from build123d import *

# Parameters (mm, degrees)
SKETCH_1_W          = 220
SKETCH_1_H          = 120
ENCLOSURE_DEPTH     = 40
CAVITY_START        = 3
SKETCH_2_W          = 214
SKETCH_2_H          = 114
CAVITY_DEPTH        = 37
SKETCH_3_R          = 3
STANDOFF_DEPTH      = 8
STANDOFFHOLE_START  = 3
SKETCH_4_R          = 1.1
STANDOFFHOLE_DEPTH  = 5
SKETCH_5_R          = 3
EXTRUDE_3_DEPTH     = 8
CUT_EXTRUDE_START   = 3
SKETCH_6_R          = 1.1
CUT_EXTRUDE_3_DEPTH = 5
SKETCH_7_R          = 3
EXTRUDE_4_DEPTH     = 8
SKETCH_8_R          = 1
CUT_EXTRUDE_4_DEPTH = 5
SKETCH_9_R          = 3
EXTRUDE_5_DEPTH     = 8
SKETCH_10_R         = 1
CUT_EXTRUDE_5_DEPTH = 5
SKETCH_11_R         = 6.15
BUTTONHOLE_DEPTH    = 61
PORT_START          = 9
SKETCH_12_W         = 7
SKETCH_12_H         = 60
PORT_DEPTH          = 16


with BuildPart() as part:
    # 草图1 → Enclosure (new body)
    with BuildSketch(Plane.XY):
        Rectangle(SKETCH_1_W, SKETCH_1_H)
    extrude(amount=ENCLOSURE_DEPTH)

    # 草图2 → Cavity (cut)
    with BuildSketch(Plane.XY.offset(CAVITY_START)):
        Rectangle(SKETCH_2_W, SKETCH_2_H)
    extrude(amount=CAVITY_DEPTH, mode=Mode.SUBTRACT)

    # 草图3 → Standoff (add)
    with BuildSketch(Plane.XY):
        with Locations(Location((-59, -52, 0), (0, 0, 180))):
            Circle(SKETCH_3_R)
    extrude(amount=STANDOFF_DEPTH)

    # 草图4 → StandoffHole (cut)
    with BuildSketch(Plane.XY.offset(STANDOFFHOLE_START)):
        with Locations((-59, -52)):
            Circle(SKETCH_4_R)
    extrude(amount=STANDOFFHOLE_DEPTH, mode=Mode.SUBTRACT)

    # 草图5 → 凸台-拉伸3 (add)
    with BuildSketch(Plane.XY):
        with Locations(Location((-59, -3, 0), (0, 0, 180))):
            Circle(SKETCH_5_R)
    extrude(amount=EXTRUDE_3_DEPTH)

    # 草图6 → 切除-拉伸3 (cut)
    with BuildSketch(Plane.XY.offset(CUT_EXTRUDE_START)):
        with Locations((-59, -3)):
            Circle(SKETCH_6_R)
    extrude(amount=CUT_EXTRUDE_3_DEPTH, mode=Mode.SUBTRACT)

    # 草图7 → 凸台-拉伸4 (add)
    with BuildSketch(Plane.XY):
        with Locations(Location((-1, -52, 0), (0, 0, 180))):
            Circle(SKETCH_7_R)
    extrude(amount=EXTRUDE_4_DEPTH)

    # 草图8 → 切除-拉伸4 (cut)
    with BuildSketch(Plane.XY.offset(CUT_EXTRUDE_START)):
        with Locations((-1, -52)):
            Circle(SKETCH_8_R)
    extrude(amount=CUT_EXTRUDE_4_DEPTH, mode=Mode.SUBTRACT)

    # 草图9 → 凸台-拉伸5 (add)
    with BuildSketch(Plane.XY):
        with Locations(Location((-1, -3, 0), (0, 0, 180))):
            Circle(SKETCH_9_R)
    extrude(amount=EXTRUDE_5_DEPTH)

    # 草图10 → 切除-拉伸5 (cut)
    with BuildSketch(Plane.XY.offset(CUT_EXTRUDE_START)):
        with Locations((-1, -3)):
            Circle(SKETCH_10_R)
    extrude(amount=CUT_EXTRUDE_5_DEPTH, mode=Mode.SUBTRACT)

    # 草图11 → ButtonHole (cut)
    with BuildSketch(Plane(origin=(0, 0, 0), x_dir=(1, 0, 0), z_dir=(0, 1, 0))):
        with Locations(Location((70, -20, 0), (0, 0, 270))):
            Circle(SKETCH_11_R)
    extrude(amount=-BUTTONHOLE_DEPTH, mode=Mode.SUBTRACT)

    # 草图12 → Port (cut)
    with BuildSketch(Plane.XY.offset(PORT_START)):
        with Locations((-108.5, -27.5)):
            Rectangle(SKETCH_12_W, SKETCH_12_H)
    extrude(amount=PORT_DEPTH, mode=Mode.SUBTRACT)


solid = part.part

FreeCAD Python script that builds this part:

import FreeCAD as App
import Part
import Sketcher
from FreeCAD import Vector
Q = App.Units.Quantity


def add_polygon(sketch, points):
    """Adds a closed chain of lines whose ends are joined by coincident constraints."""
    first, n = sketch.GeometryCount, len(points)
    for a, b in zip(points, points[1:] + points[:1]):
        sketch.addGeometry(Part.LineSegment(App.Vector(*a, 0), App.Vector(*b, 0)), False)
    for i in range(n):
        sketch.addConstraint(Sketcher.Constraint("Coincident", first + i, 2, first + (i + 1) % n, 1))

doc = App.newDocument("Part")
body = doc.addObject("PartDesign::Body", "Body")

sketch1 = doc.addObject("Sketcher::SketchObject", "Sketch")
body.addObject(sketch1)
sketch1.AttachmentSupport = (doc.XY_Plane, [""])
sketch1.MapMode = "FlatFace"
add_polygon(sketch1, [(-110, 60), (-110, -60), (110, -60), (110, 60)])
sketch1.addConstraint([
    Sketcher.Constraint("Vertical", 0),
    Sketcher.Constraint("Horizontal", 1),
    Sketcher.Constraint("Vertical", 2),
    Sketcher.Constraint("Horizontal", 3),
    Sketcher.Constraint("Symmetric", 0, 2, 2, 2, -1, 1),
    Sketcher.Constraint("DistanceX", 1, 1, 1, 2, Q("220 mm")),
    Sketcher.Constraint("DistanceY", 0, 2, 0, 1, Q("120 mm")),
])
pad1 = doc.addObject("PartDesign::Pad", "Pad")
body.addObject(pad1)
pad1.Profile = sketch1
pad1.Length = 40

sketch2 = doc.addObject("Sketcher::SketchObject", "Sketch001")
body.addObject(sketch2)
sketch2.AttachmentSupport = (doc.XY_Plane, [""])
sketch2.MapMode = "FlatFace"
sketch2.AttachmentOffset = App.Placement(Vector(0, 0, 3), App.Rotation())
add_polygon(sketch2, [(-107, 57), (-107, -57), (107, -57), (107, 57)])
sketch2.addConstraint([
    Sketcher.Constraint("Vertical", 0),
    Sketcher.Constraint("Horizontal", 1),
    Sketcher.Constraint("Vertical", 2),
    Sketcher.Constraint("Horizontal", 3),
    Sketcher.Constraint("Symmetric", 0, 2, 2, 2, -1, 1),
    Sketcher.Constraint("DistanceX", 1, 1, 1, 2, Q("214 mm")),
    Sketcher.Constraint("DistanceY", 0, 2, 0, 1, Q("114 mm")),
])
pocket1 = doc.addObject("PartDesign::Pocket", "Pocket")
body.addObject(pocket1)
pocket1.Profile = sketch2
pocket1.Length = 37
pocket1.Reversed = True

sketch3 = doc.addObject("Sketcher::SketchObject", "Sketch002")
body.addObject(sketch3)
sketch3.AttachmentSupport = (doc.XY_Plane, [""])
sketch3.MapMode = "FlatFace"
sketch3.addGeometry(Part.Circle(Vector(-59, -52, 0), Vector(0, 0, 1), 3), False)
sketch3.addConstraint([
    Sketcher.Constraint("Diameter", 0, Q("6 mm")),
    Sketcher.Constraint("DistanceX", 0, 3, -1, 1, Q("59 mm")),
    Sketcher.Constraint("DistanceY", 0, 3, -1, 1, Q("52 mm")),
])
pad2 = doc.addObject("PartDesign::Pad", "Pad001")
body.addObject(pad2)
pad2.Profile = sketch3
pad2.Length = 8

sketch4 = doc.addObject("Sketcher::SketchObject", "Sketch003")
body.addObject(sketch4)
sketch4.AttachmentSupport = (doc.XY_Plane, [""])
sketch4.MapMode = "FlatFace"
sketch4.AttachmentOffset = App.Placement(Vector(0, 0, 3), App.Rotation())
sketch4.addGeometry(Part.Circle(Vector(-59, -52, 0), Vector(0, 0, 1), 1.1), False)
sketch4.addConstraint([
    Sketcher.Constraint("Diameter", 0, Q("2.2 mm")),
    Sketcher.Constraint("DistanceX", 0, 3, -1, 1, Q("59 mm")),
    Sketcher.Constraint("DistanceY", 0, 3, -1, 1, Q("52 mm")),
])
pocket2 = doc.addObject("PartDesign::Pocket", "Pocket001")
body.addObject(pocket2)
pocket2.Profile = sketch4
pocket2.Length = 5
pocket2.Reversed = True

sketch5 = doc.addObject("Sketcher::SketchObject", "Sketch004")
body.addObject(sketch5)
sketch5.AttachmentSupport = (doc.XY_Plane, [""])
sketch5.MapMode = "FlatFace"
sketch5.addGeometry(Part.Circle(Vector(-59, -3, 0), Vector(0, 0, 1), 3), False)
sketch5.addConstraint([
    Sketcher.Constraint("Diameter", 0, Q("6 mm")),
    Sketcher.Constraint("DistanceX", 0, 3, -1, 1, Q("59 mm")),
    Sketcher.Constraint("DistanceY", 0, 3, -1, 1, Q("3 mm")),
])
pad3 = doc.addObject("PartDesign::Pad", "Pad002")
body.addObject(pad3)
pad3.Profile = sketch5
pad3.Length = 8

sketch6 = doc.addObject("Sketcher::SketchObject", "Sketch005")
body.addObject(sketch6)
sketch6.AttachmentSupport = (doc.XY_Plane, [""])
sketch6.MapMode = "FlatFace"
sketch6.AttachmentOffset = App.Placement(Vector(0, 0, 3), App.Rotation())
sketch6.addGeometry(Part.Circle(Vector(-59, -3, 0), Vector(0, 0, 1), 1.1), False)
sketch6.addConstraint([
    Sketcher.Constraint("Diameter", 0, Q("2.2 mm")),
    Sketcher.Constraint("DistanceX", 0, 3, -1, 1, Q("59 mm")),
    Sketcher.Constraint("DistanceY", 0, 3, -1, 1, Q("3 mm")),
])
pocket3 = doc.addObject("PartDesign::Pocket", "Pocket002")
body.addObject(pocket3)
pocket3.Profile = sketch6
pocket3.Length = 5
pocket3.Reversed = True

sketch7 = doc.addObject("Sketcher::SketchObject", "Sketch006")
body.addObject(sketch7)
sketch7.AttachmentSupport = (doc.XY_Plane, [""])
sketch7.MapMode = "FlatFace"
sketch7.addGeometry(Part.Circle(Vector(-1, -52, 0), Vector(0, 0, 1), 3), False)
sketch7.addConstraint([
    Sketcher.Constraint("Diameter", 0, Q("6 mm")),
    Sketcher.Constraint("DistanceX", 0, 3, -1, 1, Q("1 mm")),
    Sketcher.Constraint("DistanceY", 0, 3, -1, 1, Q("52 mm")),
])
pad4 = doc.addObject("PartDesign::Pad", "Pad003")
body.addObject(pad4)
pad4.Profile = sketch7
pad4.Length = 8

sketch8 = doc.addObject("Sketcher::SketchObject", "Sketch007")
body.addObject(sketch8)
sketch8.AttachmentSupport = (doc.XY_Plane, [""])
sketch8.MapMode = "FlatFace"
sketch8.AttachmentOffset = App.Placement(Vector(0, 0, 3), App.Rotation())
sketch8.addGeometry(Part.Circle(Vector(-1, -52, 0), Vector(0, 0, 1), 1), False)
sketch8.addConstraint([
    Sketcher.Constraint("Diameter", 0, Q("2 mm")),
    Sketcher.Constraint("DistanceX", 0, 3, -1, 1, Q("1 mm")),
    Sketcher.Constraint("DistanceY", 0, 3, -1, 1, Q("52 mm")),
])
pocket4 = doc.addObject("PartDesign::Pocket", "Pocket003")
body.addObject(pocket4)
pocket4.Profile = sketch8
pocket4.Length = 5
pocket4.Reversed = True

sketch9 = doc.addObject("Sketcher::SketchObject", "Sketch008")
body.addObject(sketch9)
sketch9.AttachmentSupport = (doc.XY_Plane, [""])
sketch9.MapMode = "FlatFace"
sketch9.addGeometry(Part.Circle(Vector(-1, -3, 0), Vector(0, 0, 1), 3), False)
sketch9.addConstraint([
    Sketcher.Constraint("Diameter", 0, Q("6 mm")),
    Sketcher.Constraint("DistanceX", 0, 3, -1, 1, Q("1 mm")),
    Sketcher.Constraint("DistanceY", 0, 3, -1, 1, Q("3 mm")),
])
pad5 = doc.addObject("PartDesign::Pad", "Pad004")
body.addObject(pad5)
pad5.Profile = sketch9
pad5.Length = 8

sketch10 = doc.addObject("Sketcher::SketchObject", "Sketch009")
body.addObject(sketch10)
sketch10.AttachmentSupport = (doc.XY_Plane, [""])
sketch10.MapMode = "FlatFace"
sketch10.AttachmentOffset = App.Placement(Vector(0, 0, 3), App.Rotation())
sketch10.addGeometry(Part.Circle(Vector(-1, -3, 0), Vector(0, 0, 1), 1), False)
sketch10.addConstraint([
    Sketcher.Constraint("Diameter", 0, Q("2 mm")),
    Sketcher.Constraint("DistanceX", 0, 3, -1, 1, Q("1 mm")),
    Sketcher.Constraint("DistanceY", 0, 3, -1, 1, Q("3 mm")),
])
pocket5 = doc.addObject("PartDesign::Pocket", "Pocket004")
body.addObject(pocket5)
pocket5.Profile = sketch10
pocket5.Length = 5
pocket5.Reversed = True

sketch11 = doc.addObject("Sketcher::SketchObject", "Sketch010")
body.addObject(sketch11)
sketch11.AttachmentSupport = (doc.XZ_Plane, [""])
sketch11.MapMode = "FlatFace"
sketch11.addGeometry(Part.Circle(Vector(70, 20, 0), Vector(0, 0, 1), 6), False)
sketch11.addConstraint([
    Sketcher.Constraint("Diameter", 0, Q("12.3 mm")),
    Sketcher.Constraint("DistanceX", -1, 1, 0, 3, Q("70 mm")),
    Sketcher.Constraint("DistanceY", -1, 1, 0, 3, Q("20 mm")),
])
pocket6 = doc.addObject("PartDesign::Pocket", "Pocket005")
body.addObject(pocket6)
pocket6.Profile = sketch11
pocket6.Length = 61
pocket6.Reversed = True

sketch12 = doc.addObject("Sketcher::SketchObject", "Sketch011")
body.addObject(sketch12)
sketch12.AttachmentSupport = (doc.XY_Plane, [""])
sketch12.MapMode = "FlatFace"
sketch12.AttachmentOffset = App.Placement(Vector(0, 0, 9), App.Rotation())
add_polygon(sketch12, [(-112, 2), (-112, -58), (-105, -58), (-105, 2)])
sketch12.addConstraint([
    Sketcher.Constraint("Vertical", 0),
    Sketcher.Constraint("Horizontal", 1),
    Sketcher.Constraint("Vertical", 2),
    Sketcher.Constraint("Horizontal", 3),
    Sketcher.Constraint("DistanceX", 1, 1, 1, 2, Q("7 mm")),
    Sketcher.Constraint("DistanceY", 0, 2, 0, 1, Q("60 mm")),
    Sketcher.Constraint("DistanceX", 0, 2, -1, 1, Q("112 mm")),
    Sketcher.Constraint("DistanceY", 0, 2, -1, 1, Q("57.5 mm")),
])
pocket7 = doc.addObject("PartDesign::Pocket", "Pocket006")
body.addObject(pocket7)
pocket7.Profile = sketch12
pocket7.Length = 16
pocket7.Reversed = True

doc.recompute()
